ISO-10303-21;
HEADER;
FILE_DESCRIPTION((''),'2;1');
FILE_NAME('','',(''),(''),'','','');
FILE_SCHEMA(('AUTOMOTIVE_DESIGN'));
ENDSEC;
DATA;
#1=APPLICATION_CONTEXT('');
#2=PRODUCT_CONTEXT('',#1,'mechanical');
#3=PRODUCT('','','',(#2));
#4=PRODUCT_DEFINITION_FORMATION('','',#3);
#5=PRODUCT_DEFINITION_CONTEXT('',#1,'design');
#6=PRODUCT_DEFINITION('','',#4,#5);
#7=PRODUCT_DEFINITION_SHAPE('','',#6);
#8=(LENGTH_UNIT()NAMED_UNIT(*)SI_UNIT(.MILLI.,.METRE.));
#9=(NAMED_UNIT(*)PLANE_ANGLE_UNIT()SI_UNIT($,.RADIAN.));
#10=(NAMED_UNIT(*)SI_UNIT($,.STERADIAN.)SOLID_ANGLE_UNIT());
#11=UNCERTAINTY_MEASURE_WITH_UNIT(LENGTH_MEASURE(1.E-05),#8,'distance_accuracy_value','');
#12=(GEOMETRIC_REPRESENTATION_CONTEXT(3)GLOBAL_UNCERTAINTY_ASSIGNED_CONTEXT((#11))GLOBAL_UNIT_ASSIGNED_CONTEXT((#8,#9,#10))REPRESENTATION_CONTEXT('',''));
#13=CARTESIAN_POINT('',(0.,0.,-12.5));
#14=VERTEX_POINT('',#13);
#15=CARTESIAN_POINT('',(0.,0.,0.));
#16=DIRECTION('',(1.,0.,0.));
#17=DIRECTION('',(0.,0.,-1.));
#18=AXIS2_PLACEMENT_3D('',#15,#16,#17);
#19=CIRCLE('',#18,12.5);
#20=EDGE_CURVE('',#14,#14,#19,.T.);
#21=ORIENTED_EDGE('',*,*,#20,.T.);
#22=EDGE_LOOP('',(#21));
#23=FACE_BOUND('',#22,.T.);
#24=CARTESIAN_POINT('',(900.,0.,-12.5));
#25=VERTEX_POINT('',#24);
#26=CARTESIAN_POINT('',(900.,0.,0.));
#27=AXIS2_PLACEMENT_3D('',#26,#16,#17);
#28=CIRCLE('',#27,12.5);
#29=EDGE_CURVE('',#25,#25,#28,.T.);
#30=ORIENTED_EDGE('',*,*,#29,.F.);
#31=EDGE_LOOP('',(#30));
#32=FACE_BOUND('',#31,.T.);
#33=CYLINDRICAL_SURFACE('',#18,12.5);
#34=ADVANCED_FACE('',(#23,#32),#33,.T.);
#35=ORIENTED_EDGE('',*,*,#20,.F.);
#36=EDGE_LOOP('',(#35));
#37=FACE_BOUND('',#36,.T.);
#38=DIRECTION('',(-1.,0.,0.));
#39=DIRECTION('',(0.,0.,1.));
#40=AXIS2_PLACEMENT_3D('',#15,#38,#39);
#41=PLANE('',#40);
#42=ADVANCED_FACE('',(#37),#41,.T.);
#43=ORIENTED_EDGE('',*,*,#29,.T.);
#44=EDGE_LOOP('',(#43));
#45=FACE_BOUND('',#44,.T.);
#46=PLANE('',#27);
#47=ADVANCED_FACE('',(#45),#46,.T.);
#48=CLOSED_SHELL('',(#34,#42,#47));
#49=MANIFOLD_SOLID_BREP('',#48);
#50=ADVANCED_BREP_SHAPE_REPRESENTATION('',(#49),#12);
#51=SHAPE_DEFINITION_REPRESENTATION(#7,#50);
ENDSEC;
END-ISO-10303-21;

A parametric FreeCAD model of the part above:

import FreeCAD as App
import Part
import Sketcher
from FreeCAD import Vector
Q = App.Units.Quantity

doc = App.newDocument("Part")
body = doc.addObject("PartDesign::Body", "Body")

sketch1 = doc.addObject("Sketcher::SketchObject", "Sketch")
body.addObject(sketch1)
sketch1.AttachmentSupport = (doc.XZ_Plane, [""])
sketch1.MapMode = "FlatFace"
sketch1.addGeometry([
    Part.LineSegment(Vector(0, -12.5, 0), Vector(0, 0, 0)),
    Part.LineSegment(Vector(0, 0, 0), Vector(900, 0, 0)),
    Part.LineSegment(Vector(900, 0, 0), Vector(900, -12.5, 0)),
    Part.LineSegment(Vector(900, -12.5, 0), Vector(0, -12.5, 0)),
], False)
sketch1.addConstraint([
    Sketcher.Constraint("Coincident", 0, 2, 1, 1),
    Sketcher.Constraint("Coincident", 1, 2, 2, 1),
    Sketcher.Constraint("Coincident", 2, 2, 3, 1),
    Sketcher.Constraint("Coincident", 3, 2, 0, 1),
    Sketcher.Constraint("Vertical", 0),
    Sketcher.Constraint("Horizontal", 1),
    Sketcher.Constraint("Vertical", 2),
    Sketcher.Constraint("Horizontal", 3),
    Sketcher.Constraint("Coincident", 0, 2, -1, 1),
    Sketcher.Constraint("DistanceX", 1, 1, 1, 2, Q("900 mm")),
    Sketcher.Constraint("DistanceY", 0, 1, 0, 2, Q("12.5 mm")),
])
revolution = doc.addObject("PartDesign::Revolution", "Revolution")
body.addObject(revolution)
revolution.Profile = sketch1
revolution.ReferenceAxis = (sketch1, ["H_Axis"])
revolution.Angle = 360

doc.recompute()
